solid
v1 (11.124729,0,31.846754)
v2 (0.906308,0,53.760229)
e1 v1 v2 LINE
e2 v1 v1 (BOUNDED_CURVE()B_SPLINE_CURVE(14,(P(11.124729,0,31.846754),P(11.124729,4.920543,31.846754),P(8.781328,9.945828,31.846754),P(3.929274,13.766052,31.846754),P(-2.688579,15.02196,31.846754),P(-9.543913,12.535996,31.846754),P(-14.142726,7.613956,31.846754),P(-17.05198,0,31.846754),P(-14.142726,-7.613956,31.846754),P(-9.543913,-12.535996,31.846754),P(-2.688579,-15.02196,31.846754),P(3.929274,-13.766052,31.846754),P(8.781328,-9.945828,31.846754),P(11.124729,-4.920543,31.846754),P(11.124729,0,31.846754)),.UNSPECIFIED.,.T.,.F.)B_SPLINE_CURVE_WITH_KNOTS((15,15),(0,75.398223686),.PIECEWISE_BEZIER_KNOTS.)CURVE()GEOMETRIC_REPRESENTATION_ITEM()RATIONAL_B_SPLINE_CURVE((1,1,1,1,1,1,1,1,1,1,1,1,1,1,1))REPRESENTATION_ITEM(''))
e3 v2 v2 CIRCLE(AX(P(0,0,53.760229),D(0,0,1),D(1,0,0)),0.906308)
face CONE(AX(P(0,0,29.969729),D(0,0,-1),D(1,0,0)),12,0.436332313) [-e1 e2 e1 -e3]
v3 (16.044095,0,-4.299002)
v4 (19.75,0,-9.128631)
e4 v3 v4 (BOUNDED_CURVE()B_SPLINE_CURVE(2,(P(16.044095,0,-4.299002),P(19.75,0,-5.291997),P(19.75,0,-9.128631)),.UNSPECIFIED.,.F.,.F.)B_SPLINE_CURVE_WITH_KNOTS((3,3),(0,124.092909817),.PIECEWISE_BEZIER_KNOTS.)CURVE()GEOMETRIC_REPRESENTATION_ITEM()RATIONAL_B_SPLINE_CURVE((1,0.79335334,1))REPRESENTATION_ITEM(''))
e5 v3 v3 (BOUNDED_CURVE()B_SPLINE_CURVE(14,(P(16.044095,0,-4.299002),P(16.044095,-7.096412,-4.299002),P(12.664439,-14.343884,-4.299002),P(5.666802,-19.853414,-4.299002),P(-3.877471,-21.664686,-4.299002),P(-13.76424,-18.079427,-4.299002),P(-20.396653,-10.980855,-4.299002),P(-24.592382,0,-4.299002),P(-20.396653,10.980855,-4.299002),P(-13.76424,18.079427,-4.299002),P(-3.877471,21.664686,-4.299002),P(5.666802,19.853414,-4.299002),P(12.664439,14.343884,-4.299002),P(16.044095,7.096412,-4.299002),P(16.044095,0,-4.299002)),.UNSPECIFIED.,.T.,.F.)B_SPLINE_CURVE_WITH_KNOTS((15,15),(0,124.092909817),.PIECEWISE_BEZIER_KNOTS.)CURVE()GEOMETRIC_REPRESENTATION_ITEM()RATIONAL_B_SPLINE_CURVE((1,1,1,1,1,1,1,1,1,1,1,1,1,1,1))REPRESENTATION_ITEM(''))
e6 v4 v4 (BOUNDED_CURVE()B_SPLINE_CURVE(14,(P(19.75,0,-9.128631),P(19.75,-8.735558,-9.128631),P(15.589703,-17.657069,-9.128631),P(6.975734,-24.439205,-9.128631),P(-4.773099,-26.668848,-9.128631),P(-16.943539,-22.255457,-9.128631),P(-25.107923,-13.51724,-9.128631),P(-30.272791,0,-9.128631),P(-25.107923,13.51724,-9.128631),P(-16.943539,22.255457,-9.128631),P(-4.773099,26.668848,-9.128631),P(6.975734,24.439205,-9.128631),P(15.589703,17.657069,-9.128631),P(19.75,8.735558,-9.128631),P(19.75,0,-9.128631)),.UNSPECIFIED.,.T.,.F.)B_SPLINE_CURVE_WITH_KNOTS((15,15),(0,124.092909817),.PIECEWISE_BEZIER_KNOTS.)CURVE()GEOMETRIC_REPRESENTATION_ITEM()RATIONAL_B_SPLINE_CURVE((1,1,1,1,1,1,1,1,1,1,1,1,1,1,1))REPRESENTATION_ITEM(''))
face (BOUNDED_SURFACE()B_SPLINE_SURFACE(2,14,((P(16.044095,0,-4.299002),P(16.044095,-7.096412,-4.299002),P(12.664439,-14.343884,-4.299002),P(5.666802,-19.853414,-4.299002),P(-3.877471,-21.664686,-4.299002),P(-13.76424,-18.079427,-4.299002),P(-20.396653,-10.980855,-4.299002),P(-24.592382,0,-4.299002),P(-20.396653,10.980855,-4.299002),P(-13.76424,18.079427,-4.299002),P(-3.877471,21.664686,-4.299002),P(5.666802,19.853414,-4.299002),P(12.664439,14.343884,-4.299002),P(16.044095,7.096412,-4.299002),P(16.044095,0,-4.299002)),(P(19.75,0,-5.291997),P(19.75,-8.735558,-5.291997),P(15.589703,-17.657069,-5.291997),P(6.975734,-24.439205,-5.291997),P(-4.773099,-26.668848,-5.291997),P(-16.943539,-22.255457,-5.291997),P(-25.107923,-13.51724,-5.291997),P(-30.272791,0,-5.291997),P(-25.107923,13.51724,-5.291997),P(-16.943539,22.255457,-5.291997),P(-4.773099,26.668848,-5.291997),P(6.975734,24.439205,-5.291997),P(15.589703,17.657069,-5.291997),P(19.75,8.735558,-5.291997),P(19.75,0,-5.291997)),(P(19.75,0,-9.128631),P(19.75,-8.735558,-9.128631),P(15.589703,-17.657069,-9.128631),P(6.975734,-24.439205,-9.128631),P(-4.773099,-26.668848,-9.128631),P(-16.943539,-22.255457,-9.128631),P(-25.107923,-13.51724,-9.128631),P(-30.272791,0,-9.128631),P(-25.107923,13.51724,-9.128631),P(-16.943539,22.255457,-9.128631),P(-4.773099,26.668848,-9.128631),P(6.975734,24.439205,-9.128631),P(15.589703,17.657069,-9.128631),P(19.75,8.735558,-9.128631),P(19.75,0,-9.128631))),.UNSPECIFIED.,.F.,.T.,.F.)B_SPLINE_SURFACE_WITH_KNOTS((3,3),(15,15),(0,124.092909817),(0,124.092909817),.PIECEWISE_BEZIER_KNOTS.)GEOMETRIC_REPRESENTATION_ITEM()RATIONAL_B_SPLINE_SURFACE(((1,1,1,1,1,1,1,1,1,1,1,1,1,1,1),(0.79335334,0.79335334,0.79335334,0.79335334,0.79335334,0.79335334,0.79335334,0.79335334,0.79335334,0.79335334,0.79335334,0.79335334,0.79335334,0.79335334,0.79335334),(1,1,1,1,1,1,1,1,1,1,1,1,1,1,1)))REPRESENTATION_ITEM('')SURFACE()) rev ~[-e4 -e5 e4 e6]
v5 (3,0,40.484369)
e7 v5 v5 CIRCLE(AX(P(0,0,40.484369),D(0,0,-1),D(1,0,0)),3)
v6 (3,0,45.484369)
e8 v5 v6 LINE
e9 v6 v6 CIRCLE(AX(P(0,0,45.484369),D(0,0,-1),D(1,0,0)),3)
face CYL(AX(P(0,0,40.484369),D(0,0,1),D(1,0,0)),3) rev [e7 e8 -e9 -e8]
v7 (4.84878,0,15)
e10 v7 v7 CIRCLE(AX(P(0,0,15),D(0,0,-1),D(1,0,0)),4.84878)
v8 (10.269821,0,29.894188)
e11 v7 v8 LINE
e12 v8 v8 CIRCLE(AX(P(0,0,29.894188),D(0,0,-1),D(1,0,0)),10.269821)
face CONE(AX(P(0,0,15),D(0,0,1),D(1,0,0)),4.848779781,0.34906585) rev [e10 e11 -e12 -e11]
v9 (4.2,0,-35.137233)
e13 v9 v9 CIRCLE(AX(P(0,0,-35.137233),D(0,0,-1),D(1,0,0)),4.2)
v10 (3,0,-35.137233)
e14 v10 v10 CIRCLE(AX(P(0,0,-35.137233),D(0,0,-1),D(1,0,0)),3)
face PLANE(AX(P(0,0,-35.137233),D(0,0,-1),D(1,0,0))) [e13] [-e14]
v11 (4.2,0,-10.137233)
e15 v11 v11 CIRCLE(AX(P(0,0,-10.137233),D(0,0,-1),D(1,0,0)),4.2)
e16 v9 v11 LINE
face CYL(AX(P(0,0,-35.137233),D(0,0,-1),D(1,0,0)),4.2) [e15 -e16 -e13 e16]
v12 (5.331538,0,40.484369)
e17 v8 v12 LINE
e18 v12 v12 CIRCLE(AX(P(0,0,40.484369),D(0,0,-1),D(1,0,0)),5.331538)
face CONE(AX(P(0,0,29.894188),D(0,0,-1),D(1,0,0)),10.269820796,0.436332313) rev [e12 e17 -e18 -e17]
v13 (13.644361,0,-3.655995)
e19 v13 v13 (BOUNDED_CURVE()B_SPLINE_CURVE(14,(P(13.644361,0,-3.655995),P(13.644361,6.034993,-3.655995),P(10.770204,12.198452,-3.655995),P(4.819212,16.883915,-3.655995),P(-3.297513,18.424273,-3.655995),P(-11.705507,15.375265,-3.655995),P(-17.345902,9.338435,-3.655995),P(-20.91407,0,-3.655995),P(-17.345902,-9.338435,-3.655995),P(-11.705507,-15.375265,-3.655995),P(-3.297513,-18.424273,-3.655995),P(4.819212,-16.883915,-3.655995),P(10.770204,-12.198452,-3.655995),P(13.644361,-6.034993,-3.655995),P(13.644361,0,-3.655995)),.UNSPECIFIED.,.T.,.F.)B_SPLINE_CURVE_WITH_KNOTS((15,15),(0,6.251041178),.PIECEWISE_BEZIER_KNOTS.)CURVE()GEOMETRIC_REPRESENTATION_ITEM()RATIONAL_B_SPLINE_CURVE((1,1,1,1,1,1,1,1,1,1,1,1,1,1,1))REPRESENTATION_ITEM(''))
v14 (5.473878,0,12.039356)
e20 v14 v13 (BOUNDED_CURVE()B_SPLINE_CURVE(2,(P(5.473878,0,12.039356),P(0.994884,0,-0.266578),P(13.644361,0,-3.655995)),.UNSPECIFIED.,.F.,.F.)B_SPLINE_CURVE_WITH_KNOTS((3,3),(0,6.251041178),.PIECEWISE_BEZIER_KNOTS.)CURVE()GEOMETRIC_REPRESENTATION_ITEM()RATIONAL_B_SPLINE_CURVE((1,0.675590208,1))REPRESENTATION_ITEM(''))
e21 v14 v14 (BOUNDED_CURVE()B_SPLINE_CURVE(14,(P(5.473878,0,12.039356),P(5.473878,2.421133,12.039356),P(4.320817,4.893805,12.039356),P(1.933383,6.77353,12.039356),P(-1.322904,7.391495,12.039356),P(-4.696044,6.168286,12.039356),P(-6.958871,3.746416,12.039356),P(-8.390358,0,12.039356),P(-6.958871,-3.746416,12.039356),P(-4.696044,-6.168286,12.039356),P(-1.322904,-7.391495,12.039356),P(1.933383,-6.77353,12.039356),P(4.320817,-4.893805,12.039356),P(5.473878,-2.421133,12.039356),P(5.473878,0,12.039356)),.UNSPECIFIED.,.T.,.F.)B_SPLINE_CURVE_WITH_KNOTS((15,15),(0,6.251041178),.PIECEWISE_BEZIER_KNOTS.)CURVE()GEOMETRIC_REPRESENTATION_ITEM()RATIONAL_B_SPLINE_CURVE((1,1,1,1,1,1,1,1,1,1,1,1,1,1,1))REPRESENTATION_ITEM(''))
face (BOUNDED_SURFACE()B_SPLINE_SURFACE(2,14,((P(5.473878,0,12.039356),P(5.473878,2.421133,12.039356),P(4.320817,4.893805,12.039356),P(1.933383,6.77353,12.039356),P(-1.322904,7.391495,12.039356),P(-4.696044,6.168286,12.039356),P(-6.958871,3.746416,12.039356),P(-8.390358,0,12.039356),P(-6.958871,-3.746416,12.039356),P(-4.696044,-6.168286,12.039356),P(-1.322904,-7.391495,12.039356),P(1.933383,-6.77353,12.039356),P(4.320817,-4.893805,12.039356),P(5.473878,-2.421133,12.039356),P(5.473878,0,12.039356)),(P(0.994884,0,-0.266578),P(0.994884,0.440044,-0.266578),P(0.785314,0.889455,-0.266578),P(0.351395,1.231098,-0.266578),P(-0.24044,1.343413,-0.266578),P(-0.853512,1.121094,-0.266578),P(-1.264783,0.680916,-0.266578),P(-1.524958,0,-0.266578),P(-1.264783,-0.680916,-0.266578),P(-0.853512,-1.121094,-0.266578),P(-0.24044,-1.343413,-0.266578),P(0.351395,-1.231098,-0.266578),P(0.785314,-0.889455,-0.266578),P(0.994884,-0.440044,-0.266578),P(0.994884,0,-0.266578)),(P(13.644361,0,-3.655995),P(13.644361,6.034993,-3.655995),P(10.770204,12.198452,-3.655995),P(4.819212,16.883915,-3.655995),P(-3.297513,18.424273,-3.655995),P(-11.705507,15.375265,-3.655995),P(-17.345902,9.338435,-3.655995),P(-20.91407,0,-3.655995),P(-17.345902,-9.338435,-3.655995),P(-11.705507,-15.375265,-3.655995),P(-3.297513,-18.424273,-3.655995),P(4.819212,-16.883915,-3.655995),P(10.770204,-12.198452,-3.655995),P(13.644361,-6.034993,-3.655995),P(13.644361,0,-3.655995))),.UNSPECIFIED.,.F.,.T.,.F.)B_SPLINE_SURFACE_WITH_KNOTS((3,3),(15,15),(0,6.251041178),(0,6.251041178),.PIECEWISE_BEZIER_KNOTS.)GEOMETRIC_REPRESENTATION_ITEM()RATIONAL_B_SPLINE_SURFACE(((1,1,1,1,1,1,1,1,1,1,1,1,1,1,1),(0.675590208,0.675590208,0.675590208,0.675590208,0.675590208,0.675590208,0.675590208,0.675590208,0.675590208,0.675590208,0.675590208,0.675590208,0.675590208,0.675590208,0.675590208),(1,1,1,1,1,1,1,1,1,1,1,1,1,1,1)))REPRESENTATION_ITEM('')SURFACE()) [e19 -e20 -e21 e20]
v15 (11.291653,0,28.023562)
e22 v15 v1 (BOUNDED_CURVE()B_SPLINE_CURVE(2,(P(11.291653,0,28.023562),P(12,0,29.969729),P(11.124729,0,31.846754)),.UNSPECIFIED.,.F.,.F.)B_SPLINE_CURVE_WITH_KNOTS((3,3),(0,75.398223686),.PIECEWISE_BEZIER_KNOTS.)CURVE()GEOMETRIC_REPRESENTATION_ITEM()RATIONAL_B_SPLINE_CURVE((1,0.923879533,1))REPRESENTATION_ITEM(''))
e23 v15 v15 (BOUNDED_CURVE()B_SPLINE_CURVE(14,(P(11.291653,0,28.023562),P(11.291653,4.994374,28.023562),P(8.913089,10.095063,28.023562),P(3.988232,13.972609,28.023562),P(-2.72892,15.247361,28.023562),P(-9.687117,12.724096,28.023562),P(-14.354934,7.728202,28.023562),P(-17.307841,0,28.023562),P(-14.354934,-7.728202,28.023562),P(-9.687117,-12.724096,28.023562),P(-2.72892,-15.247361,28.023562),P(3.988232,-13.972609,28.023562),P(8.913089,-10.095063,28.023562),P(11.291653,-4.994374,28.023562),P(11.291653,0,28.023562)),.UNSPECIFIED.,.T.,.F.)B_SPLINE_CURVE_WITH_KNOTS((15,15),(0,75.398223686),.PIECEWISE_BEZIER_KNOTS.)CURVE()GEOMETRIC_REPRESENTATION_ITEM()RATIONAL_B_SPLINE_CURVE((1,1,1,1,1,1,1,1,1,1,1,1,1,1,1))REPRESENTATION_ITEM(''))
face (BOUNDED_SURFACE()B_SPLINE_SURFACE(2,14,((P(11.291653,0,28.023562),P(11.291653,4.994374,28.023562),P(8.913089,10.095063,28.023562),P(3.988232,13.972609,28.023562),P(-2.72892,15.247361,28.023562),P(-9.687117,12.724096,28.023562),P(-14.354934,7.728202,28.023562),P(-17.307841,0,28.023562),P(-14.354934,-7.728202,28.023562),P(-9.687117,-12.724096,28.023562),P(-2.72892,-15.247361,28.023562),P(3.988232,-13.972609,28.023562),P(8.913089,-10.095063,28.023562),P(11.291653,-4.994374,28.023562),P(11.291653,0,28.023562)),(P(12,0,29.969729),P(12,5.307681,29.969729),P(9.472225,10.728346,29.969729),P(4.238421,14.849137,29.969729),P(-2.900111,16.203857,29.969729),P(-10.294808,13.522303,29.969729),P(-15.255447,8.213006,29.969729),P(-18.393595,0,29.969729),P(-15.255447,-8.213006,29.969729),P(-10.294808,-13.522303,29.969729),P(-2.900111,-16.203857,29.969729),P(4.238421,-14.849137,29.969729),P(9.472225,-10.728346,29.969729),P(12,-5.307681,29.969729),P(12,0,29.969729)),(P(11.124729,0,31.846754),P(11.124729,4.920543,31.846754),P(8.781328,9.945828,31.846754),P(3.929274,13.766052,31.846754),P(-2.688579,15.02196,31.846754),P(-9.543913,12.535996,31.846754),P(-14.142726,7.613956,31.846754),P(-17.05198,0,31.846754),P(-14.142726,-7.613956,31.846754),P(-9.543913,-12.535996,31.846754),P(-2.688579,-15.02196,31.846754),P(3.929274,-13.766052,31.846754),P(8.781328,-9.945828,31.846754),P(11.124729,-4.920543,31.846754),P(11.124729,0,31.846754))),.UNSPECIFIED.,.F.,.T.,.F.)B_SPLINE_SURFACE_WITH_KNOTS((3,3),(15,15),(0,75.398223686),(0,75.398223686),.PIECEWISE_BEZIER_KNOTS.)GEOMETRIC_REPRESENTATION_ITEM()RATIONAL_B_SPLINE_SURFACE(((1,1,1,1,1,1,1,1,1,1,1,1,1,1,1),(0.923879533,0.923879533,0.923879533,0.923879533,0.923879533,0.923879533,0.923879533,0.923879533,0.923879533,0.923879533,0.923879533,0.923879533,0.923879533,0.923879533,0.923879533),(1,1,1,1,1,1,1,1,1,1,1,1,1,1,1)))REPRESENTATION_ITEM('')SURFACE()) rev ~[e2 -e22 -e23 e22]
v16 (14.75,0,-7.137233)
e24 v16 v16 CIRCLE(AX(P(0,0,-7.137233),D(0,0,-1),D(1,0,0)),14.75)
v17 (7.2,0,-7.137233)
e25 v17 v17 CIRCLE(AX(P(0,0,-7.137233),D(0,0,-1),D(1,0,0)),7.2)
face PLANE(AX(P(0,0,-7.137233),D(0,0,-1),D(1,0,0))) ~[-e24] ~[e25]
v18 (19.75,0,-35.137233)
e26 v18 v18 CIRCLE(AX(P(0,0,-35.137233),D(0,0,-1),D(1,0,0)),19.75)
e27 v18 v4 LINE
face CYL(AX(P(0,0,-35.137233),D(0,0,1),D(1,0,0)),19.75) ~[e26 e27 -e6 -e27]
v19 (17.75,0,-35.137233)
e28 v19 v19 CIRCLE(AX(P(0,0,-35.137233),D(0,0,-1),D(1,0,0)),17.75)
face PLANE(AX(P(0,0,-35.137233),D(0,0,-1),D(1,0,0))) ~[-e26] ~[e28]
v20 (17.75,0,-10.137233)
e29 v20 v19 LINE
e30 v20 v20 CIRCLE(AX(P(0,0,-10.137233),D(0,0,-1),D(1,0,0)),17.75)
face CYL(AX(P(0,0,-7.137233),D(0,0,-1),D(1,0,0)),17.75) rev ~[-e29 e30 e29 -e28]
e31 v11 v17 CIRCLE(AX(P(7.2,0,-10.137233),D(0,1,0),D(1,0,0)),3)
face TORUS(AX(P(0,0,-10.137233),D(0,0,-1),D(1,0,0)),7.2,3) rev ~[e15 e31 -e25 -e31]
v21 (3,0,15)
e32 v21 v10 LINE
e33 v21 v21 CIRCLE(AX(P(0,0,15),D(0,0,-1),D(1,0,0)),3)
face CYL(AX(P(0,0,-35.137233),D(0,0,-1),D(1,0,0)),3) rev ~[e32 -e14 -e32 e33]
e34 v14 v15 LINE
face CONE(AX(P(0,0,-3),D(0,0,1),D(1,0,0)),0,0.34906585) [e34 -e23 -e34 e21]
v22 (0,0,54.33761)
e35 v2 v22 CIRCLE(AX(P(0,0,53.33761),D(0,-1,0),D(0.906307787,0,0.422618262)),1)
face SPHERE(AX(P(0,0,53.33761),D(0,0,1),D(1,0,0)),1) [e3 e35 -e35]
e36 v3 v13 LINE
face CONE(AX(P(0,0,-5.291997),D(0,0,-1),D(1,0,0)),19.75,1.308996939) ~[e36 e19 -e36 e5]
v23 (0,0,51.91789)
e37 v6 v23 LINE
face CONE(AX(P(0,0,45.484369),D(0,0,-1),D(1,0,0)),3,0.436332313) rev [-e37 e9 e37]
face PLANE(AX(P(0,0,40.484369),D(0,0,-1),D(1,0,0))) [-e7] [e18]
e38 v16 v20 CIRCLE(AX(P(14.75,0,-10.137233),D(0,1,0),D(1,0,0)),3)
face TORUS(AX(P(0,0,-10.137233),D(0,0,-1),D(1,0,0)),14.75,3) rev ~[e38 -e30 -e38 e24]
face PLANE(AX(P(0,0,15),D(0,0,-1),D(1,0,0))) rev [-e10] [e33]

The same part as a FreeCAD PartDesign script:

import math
import FreeCAD as App
import Part
import Sketcher

V = App.Vector
Q = App.Units.Quantity


def edges_at(feature, points):
    """Names of the edges that pass closest to the given points."""
    edges = feature.Shape.Edges
    near = lambda p: min(range(len(edges)), key=lambda i: edges[i].distToShape(Part.Vertex(*p))[0])
    return sorted({f"Edge{near(p) + 1}" for p in points})

doc = App.newDocument("Part")
body = doc.addObject("PartDesign::Body", "Body")

sketch1 = body.newObject("Sketcher::SketchObject", "Sketch")
sketch1.AttachmentSupport = (doc.getObject("XZ_Plane"), [""])
sketch1.MapMode = "FlatFace"
sketch1.addGeometry([
    Part.LineSegment(V(17.8, -7.1, 0), V(17.8, -35.1, 0)),
    Part.LineSegment(V(17.8, -35.1, 0), V(19.8, -35.1, 0)),
    Part.LineSegment(V(19.8, -35.1, 0), V(19.8, -5.3, 0)),
    Part.LineSegment(V(19.8, -5.3, 0), V(0, 0, 0)),
    Part.LineSegment(V(0, 0, 0), V(0, -7.1, 0)),
    Part.LineSegment(V(0, -7.1, 0), V(17.8, -7.1, 0)),
], False)
sketch1.addConstraint([
    Sketcher.Constraint("Coincident", 0, 2, 1, 1),
    Sketcher.Constraint("Coincident", 1, 2, 2, 1),
    Sketcher.Constraint("Coincident", 2, 2, 3, 1),
    Sketcher.Constraint("Coincident", 3, 2, 4, 1),
    Sketcher.Constraint("Coincident", 4, 2, 5, 1),
    Sketcher.Constraint("Coincident", 5, 2, 0, 1),
    Sketcher.Constraint("Vertical", 0),
    Sketcher.Constraint("Horizontal", 1),
    Sketcher.Constraint("Vertical", 2),
    Sketcher.Constraint("Vertical", 4),
    Sketcher.Constraint("Horizontal", 5),
    Sketcher.Constraint("Coincident", 3, 2, -1, 1),
    Sketcher.Constraint("DistanceX", 1, 1, 1, 2, Q("2 mm")),
    Sketcher.Constraint("DistanceY", 0, 2, 0, 1, Q("28 mm")),
    Sketcher.Constraint("Angle", 3, Q("165 deg")),
    Sketcher.Constraint("DistanceX", 5, 1, 5, 2, Q("17.75 mm")),
    Sketcher.Constraint("DistanceY", 2, 1, 2, 2, Q("29.845237 mm")),
])
revolution = body.newObject("PartDesign::Revolution", "Revolution")
revolution.Profile = sketch1
revolution.ReferenceAxis = (sketch1, ["V_Axis"])
revolution.Angle = 360

sketch2 = body.newObject("Sketcher::SketchObject", "Sketch001")
sketch2.AttachmentSupport = (doc.getObject("XZ_Plane"), [""])
sketch2.MapMode = "FlatFace"
sketch2.addGeometry([
    Part.LineSegment(V(0, 54.3, 0), V(0, -3, 0)),
    Part.LineSegment(V(0, -3, 0), V(12, 30, 0)),
    Part.LineSegment(V(12, 30, 0), V(0.9, 53.8, 0)),
    Part.ArcOfCircle(Part.Circle(V(0, 53.3, 0), V(0, 0, 1), 1), math.radians(25), math.radians(90)),
], False)
sketch2.addConstraint([
    Sketcher.Constraint("Coincident", 0, 2, 1, 1),
    Sketcher.Constraint("Coincident", 1, 2, 2, 1),
    Sketcher.Constraint("Tangent", 2, 2, 3, 1),
    Sketcher.Constraint("Coincident", 3, 2, 0, 1),
    Sketcher.Constraint("Vertical", 0),
    Sketcher.Constraint("PointOnObject", 3, 3, -2),
    Sketcher.Constraint("PointOnObject", 0, 2, -2),
    Sketcher.Constraint("Radius", 3, Q("1 mm")),
    Sketcher.Constraint("Angle", 1, Q("70 deg")),
    Sketcher.Constraint("Angle", 2, Q("115 deg")),
    Sketcher.Constraint("DistanceY", 0, 2, -1, 1, Q("3 mm")),
    Sketcher.Constraint("DistanceX", -1, 1, 1, 2, Q("12 mm")),
])
revolution2 = body.newObject("PartDesign::Revolution", "Revolution001")
revolution2.Profile = sketch2
revolution2.ReferenceAxis = (sketch2, ["V_Axis"])
revolution2.Angle = 360
doc.recompute()

fillet = body.newObject("PartDesign::Fillet", "Fillet")
fillet.Base = (revolution2, edges_at(revolution2, [(-0.995, 0, -0.267)]))
fillet.Radius = 12
doc.recompute()

fillet2 = body.newObject("PartDesign::Fillet", "Fillet001")
fillet2.Base = (fillet, edges_at(fillet, [(-12, 0, 29.97), (-19.75, 0, -5.292)]))
fillet2.Radius = 5

sketch3 = body.newObject("Sketcher::SketchObject", "Sketch002")
sketch3.AttachmentSupport = (doc.getObject("XZ_Plane"), [""])
sketch3.MapMode = "FlatFace"
sketch3.addGeometry([
    Part.LineSegment(V(3, 45.5, 0), V(0, 51.9, 0)),
    Part.LineSegment(V(0, 51.9, 0), V(0, -35.1, 0)),
    Part.LineSegment(V(0, -35.1, 0), V(3, -35.1, 0)),
    Part.LineSegment(V(3, -35.1, 0), V(3, 15, 0)),
    Part.LineSegment(V(3, 15, 0), V(4.8, 15, 0)),
    Part.LineSegment(V(4.8, 15, 0), V(10.3, 29.9, 0)),
    Part.LineSegment(V(10.3, 29.9, 0), V(5.3, 40.5, 0)),
    Part.LineSegment(V(5.3, 40.5, 0), V(3, 40.5, 0)),
    Part.LineSegment(V(3, 40.5, 0), V(3, 45.5, 0)),
], False)
sketch3.addConstraint([
    Sketcher.Constraint("Coincident", 0, 2, 1, 1),
    Sketcher.Constraint("Coincident", 1, 2, 2, 1),
    Sketcher.Constraint("Coincident", 2, 2, 3, 1),
    Sketcher.Constraint("Coincident", 3, 2, 4, 1),
    Sketcher.Constraint("Coincident", 4, 2, 5, 1),
    Sketcher.Constraint("Coincident", 5, 2, 6, 1),
    Sketcher.Constraint("Coincident", 6, 2, 7, 1),
    Sketcher.Constraint("Coincident", 7, 2, 8, 1),
    Sketcher.Constraint("Coincident", 8, 2, 0, 1),
    Sketcher.Constraint("Vertical", 1),
    Sketcher.Constraint("Horizontal", 2),
    Sketcher.Constraint("Vertical", 3),
    Sketcher.Constraint("Horizontal", 4),
    Sketcher.Constraint("Horizontal", 7),
    Sketcher.Constraint("Vertical", 8),
    Sketcher.Constraint("PointOnObject", 0, 2, -2),
    Sketcher.Constraint("Parallel", 0, 6),
    Sketcher.Constraint("Vertical", 3, 2, 7, 2),
    Sketcher.Constraint("DistanceX", 2, 1, 2, 2, Q("3 mm")),
    Sketcher.Constraint("DistanceY", 8, 1, 8, 2, Q("5 mm")),
    Sketcher.Constraint("Angle", 0, Q("115 deg")),
    Sketcher.Constraint("Angle", 5, Q("70 deg")),
    Sketcher.Constraint("DistanceY", -1, 1, 3, 2, Q("15 mm")),
    Sketcher.Constraint("DistanceX", 4, 1, 4, 2, Q("1.84878 mm")),
    Sketcher.Constraint("DistanceX", 7, 2, 7, 1, Q("2.331538 mm")),
    Sketcher.Constraint("DistanceY", 5, 2, 0, 2, Q("22.023702 mm")),
    Sketcher.Constraint("DistanceY", 1, 2, 1, 1, Q("87.055123 mm")),
])
groove = body.newObject("PartDesign::Groove", "Groove")
groove.Profile = sketch3
groove.ReferenceAxis = (sketch3, ["V_Axis"])
groove.Angle = 360

sketch4 = body.newObject("Sketcher::SketchObject", "Sketch003")
sketch4.AttachmentSupport = (doc.getObject("XY_Plane"), [""])
sketch4.MapMode = "FlatFace"
sketch4.AttachmentOffset = App.Placement(V(0, 0, -35.137233), App.Rotation())
sketch4.addGeometry([
    Part.Circle(V(0, 0, 0), V(0, 0, 1), 4.2),
    Part.Circle(V(0, 0, 0), V(0, 0, 1), 3),
], False)
sketch4.addConstraint([
    Sketcher.Constraint("Coincident", 0, 3, -1, 1),
    Sketcher.Constraint("Coincident", 1, 3, -1, 1),
    Sketcher.Constraint("Diameter", 1, Q("6 mm")),
    Sketcher.Constraint("Diameter", 0, Q("8.4 mm")),
])
pad1 = body.newObject("PartDesign::Pad", "Pad")
pad1.Profile = sketch4
pad1.Length = 28
doc.recompute()

fillet3 = body.newObject("PartDesign::Fillet", "Fillet002")
fillet3.Base = (pad1, edges_at(pad1, [(-17.75, 0, -7.137), (-4.2, 0, -7.137)]))
fillet3.Radius = 3

doc.recompute()
